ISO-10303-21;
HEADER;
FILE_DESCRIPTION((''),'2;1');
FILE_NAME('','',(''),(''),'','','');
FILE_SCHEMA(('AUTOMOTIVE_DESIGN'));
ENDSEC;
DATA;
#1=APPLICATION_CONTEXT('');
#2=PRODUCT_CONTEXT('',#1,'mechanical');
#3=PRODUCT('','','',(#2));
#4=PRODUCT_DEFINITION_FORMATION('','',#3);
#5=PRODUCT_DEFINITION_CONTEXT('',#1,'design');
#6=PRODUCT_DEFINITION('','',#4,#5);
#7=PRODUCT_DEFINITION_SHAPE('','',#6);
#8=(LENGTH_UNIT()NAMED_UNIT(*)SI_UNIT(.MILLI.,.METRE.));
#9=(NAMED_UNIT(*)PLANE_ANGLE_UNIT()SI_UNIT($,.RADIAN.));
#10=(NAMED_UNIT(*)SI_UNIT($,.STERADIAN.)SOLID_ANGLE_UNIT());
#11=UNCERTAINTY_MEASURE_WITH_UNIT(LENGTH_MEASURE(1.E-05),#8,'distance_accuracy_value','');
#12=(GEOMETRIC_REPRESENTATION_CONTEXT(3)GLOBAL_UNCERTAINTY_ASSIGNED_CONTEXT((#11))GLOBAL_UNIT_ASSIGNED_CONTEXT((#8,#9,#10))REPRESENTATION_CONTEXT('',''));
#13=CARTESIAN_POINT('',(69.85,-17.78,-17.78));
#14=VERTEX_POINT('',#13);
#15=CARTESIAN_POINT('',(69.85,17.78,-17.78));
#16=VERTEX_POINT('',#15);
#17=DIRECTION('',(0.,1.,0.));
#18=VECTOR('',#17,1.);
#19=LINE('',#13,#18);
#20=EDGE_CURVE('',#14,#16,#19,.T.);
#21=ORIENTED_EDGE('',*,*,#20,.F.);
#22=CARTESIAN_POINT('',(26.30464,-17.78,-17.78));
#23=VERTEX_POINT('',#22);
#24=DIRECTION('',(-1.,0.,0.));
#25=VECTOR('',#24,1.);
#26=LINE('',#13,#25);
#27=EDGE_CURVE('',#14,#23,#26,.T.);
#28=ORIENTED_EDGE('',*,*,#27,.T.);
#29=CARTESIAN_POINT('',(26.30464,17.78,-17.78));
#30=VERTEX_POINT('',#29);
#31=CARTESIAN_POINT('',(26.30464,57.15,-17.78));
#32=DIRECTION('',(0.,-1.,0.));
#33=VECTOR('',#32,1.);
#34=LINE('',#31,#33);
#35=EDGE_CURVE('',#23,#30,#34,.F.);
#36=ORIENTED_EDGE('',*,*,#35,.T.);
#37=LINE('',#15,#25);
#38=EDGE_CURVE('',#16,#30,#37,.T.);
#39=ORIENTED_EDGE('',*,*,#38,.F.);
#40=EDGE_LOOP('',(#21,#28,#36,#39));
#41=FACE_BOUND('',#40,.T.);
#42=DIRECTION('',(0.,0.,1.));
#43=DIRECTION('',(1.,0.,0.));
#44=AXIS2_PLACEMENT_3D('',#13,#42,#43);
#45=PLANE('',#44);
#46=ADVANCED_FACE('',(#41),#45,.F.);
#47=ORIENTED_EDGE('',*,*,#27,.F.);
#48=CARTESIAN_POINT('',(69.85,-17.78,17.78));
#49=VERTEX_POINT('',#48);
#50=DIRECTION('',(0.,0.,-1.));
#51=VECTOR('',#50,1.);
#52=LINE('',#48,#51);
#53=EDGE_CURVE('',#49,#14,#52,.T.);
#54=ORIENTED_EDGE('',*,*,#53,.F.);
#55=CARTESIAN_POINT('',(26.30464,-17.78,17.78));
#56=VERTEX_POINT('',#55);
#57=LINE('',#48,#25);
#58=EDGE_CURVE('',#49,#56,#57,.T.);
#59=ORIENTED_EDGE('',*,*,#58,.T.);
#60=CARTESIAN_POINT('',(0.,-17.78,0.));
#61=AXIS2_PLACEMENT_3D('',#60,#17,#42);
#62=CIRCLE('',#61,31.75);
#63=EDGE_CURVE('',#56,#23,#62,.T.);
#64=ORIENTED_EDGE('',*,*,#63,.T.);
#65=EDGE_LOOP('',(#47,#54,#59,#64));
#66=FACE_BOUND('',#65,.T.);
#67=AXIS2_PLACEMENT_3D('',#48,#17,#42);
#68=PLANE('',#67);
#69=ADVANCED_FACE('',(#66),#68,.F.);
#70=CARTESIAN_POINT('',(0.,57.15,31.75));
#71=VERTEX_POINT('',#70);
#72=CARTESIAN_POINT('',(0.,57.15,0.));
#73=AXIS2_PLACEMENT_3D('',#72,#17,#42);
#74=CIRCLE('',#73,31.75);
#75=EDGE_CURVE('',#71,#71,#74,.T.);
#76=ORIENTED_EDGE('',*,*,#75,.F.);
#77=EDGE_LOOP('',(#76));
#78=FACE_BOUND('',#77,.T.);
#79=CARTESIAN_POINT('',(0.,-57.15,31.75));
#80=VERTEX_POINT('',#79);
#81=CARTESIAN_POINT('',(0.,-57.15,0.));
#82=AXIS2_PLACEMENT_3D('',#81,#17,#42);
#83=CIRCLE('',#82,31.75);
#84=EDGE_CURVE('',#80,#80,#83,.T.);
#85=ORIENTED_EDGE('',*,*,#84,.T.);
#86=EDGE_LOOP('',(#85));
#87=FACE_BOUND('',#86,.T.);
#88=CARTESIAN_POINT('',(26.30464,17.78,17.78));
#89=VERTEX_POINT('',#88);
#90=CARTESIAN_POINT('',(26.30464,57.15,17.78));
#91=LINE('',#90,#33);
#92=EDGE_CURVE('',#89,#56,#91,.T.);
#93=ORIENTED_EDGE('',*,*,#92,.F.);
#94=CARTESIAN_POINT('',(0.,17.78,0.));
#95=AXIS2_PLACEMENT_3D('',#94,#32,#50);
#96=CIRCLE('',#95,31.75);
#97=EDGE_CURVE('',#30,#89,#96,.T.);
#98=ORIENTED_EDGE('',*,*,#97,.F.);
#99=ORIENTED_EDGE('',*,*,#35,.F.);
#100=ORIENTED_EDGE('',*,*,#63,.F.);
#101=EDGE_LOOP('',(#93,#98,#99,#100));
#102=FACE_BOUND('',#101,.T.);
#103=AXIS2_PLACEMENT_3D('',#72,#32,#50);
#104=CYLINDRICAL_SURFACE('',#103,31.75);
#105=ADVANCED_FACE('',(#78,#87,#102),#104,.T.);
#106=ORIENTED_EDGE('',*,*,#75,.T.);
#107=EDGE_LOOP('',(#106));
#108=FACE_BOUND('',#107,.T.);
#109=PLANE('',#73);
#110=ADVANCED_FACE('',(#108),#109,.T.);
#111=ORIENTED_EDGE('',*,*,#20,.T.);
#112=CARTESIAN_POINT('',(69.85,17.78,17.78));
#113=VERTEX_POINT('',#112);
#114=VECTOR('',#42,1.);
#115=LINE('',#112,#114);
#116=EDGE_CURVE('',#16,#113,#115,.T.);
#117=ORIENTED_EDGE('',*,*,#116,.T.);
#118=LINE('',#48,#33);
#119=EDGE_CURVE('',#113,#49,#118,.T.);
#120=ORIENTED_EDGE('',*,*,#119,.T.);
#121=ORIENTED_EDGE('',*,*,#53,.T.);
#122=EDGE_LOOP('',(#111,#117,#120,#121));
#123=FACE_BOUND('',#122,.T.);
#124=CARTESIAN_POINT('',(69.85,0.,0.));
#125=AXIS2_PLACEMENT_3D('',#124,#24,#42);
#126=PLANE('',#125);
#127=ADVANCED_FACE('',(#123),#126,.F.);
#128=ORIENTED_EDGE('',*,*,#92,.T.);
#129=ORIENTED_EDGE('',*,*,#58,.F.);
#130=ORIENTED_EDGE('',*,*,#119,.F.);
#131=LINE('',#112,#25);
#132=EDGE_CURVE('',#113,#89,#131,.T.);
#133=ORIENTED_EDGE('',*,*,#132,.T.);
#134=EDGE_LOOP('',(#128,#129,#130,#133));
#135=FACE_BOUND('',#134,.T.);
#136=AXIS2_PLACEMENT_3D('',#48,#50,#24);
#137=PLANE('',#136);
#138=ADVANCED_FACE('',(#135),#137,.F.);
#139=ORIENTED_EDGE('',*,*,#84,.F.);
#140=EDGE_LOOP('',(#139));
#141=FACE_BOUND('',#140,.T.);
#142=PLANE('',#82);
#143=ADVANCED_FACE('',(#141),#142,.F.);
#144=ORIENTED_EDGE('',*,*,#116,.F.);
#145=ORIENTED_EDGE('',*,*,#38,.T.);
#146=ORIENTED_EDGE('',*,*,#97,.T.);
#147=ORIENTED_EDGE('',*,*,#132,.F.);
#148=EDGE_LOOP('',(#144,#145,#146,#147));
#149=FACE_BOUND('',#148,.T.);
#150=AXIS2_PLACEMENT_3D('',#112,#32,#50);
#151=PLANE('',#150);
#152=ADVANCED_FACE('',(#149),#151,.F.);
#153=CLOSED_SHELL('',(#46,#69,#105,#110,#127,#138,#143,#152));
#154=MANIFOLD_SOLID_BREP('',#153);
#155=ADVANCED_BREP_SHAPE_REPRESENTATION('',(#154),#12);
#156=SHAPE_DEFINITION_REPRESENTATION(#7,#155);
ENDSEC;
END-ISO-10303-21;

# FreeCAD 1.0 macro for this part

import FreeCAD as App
import Part
import Sketcher
from FreeCAD import Vector
Q = App.Units.Quantity

doc = App.newDocument("Part")
params = doc.addObject("Spreadsheet::Sheet", "Params")
for row, (alias, value) in enumerate([
    ("sketch1_diameter", "2.5 in"),
    ("pad1_length", "4.5 in"),
    ("sketch2_width", "1.4 in"),
    ("pad2_length", "2.75 in"),
], start=1):
    params.set(f"A{row}", alias)
    params.set(f"B{row}", "=" + value)
    params.setAlias(f"B{row}", alias)

body = doc.addObject("PartDesign::Body", "Body")

sketch1 = body.newObject("Sketcher::SketchObject", "Sketch")
sketch1.AttachmentSupport = (doc.getObject("XZ_Plane"), [""])
sketch1.MapMode = "FlatFace"
sketch1.addGeometry(Part.Circle(Vector(0, 0, 0), Vector(0, 0, 1), 32), False)
sketch1.addConstraint(Sketcher.Constraint("Coincident", 0, 3, -1, 1))
sketch1.addConstraint(Sketcher.Constraint("Diameter", 0, Q("2.5 in")))
sketch1.setExpression("Constraints[1]", "Params.sketch1_diameter")
pad1 = body.newObject("PartDesign::Pad", "Pad")
pad1.Profile = sketch1
pad1.setExpression("Length", "Params.pad1_length")
pad1.Midplane = True

sketch2 = body.newObject("Sketcher::SketchObject", "Sketch001")
sketch2.AttachmentSupport = (doc.getObject("YZ_Plane"), [""])
sketch2.MapMode = "FlatFace"
sketch2.addGeometry(Part.LineSegment(Vector(18, 18, 0), Vector(-18, 18, 0)), False)
sketch2.addGeometry(Part.LineSegment(Vector(-18, 18, 0), Vector(-18, -18, 0)), False)
sketch2.addGeometry(Part.LineSegment(Vector(-18, -18, 0), Vector(18, -18, 0)), False)
sketch2.addGeometry(Part.LineSegment(Vector(18, -18, 0), Vector(18, 18, 0)), False)
sketch2.addConstraint(Sketcher.Constraint("Coincident", 0, 2, 1, 1))
sketch2.addConstraint(Sketcher.Constraint("Coincident", 1, 2, 2, 1))
sketch2.addConstraint(Sketcher.Constraint("Coincident", 2, 2, 3, 1))
sketch2.addConstraint(Sketcher.Constraint("Coincident", 3, 2, 0, 1))
sketch2.addConstraint(Sketcher.Constraint("Horizontal", 0))
sketch2.addConstraint(Sketcher.Constraint("Vertical", 1))
sketch2.addConstraint(Sketcher.Constraint("Horizontal", 2))
sketch2.addConstraint(Sketcher.Constraint("Vertical", 3))
sketch2.addConstraint(Sketcher.Constraint("Symmetric", 0, 2, 2, 2, -1, 1))
sketch2.addConstraint(Sketcher.Constraint("Equal", 2, 1))
sketch2.addConstraint(Sketcher.Constraint("DistanceX", 0, 2, 0, 1, Q("1.4 in")))
sketch2.setExpression("Constraints[10]", "Params.sketch2_width")
pad2 = body.newObject("PartDesign::Pad", "Pad001")
pad2.Profile = sketch2
pad2.setExpression("Length", "Params.pad2_length")

doc.recompute()
